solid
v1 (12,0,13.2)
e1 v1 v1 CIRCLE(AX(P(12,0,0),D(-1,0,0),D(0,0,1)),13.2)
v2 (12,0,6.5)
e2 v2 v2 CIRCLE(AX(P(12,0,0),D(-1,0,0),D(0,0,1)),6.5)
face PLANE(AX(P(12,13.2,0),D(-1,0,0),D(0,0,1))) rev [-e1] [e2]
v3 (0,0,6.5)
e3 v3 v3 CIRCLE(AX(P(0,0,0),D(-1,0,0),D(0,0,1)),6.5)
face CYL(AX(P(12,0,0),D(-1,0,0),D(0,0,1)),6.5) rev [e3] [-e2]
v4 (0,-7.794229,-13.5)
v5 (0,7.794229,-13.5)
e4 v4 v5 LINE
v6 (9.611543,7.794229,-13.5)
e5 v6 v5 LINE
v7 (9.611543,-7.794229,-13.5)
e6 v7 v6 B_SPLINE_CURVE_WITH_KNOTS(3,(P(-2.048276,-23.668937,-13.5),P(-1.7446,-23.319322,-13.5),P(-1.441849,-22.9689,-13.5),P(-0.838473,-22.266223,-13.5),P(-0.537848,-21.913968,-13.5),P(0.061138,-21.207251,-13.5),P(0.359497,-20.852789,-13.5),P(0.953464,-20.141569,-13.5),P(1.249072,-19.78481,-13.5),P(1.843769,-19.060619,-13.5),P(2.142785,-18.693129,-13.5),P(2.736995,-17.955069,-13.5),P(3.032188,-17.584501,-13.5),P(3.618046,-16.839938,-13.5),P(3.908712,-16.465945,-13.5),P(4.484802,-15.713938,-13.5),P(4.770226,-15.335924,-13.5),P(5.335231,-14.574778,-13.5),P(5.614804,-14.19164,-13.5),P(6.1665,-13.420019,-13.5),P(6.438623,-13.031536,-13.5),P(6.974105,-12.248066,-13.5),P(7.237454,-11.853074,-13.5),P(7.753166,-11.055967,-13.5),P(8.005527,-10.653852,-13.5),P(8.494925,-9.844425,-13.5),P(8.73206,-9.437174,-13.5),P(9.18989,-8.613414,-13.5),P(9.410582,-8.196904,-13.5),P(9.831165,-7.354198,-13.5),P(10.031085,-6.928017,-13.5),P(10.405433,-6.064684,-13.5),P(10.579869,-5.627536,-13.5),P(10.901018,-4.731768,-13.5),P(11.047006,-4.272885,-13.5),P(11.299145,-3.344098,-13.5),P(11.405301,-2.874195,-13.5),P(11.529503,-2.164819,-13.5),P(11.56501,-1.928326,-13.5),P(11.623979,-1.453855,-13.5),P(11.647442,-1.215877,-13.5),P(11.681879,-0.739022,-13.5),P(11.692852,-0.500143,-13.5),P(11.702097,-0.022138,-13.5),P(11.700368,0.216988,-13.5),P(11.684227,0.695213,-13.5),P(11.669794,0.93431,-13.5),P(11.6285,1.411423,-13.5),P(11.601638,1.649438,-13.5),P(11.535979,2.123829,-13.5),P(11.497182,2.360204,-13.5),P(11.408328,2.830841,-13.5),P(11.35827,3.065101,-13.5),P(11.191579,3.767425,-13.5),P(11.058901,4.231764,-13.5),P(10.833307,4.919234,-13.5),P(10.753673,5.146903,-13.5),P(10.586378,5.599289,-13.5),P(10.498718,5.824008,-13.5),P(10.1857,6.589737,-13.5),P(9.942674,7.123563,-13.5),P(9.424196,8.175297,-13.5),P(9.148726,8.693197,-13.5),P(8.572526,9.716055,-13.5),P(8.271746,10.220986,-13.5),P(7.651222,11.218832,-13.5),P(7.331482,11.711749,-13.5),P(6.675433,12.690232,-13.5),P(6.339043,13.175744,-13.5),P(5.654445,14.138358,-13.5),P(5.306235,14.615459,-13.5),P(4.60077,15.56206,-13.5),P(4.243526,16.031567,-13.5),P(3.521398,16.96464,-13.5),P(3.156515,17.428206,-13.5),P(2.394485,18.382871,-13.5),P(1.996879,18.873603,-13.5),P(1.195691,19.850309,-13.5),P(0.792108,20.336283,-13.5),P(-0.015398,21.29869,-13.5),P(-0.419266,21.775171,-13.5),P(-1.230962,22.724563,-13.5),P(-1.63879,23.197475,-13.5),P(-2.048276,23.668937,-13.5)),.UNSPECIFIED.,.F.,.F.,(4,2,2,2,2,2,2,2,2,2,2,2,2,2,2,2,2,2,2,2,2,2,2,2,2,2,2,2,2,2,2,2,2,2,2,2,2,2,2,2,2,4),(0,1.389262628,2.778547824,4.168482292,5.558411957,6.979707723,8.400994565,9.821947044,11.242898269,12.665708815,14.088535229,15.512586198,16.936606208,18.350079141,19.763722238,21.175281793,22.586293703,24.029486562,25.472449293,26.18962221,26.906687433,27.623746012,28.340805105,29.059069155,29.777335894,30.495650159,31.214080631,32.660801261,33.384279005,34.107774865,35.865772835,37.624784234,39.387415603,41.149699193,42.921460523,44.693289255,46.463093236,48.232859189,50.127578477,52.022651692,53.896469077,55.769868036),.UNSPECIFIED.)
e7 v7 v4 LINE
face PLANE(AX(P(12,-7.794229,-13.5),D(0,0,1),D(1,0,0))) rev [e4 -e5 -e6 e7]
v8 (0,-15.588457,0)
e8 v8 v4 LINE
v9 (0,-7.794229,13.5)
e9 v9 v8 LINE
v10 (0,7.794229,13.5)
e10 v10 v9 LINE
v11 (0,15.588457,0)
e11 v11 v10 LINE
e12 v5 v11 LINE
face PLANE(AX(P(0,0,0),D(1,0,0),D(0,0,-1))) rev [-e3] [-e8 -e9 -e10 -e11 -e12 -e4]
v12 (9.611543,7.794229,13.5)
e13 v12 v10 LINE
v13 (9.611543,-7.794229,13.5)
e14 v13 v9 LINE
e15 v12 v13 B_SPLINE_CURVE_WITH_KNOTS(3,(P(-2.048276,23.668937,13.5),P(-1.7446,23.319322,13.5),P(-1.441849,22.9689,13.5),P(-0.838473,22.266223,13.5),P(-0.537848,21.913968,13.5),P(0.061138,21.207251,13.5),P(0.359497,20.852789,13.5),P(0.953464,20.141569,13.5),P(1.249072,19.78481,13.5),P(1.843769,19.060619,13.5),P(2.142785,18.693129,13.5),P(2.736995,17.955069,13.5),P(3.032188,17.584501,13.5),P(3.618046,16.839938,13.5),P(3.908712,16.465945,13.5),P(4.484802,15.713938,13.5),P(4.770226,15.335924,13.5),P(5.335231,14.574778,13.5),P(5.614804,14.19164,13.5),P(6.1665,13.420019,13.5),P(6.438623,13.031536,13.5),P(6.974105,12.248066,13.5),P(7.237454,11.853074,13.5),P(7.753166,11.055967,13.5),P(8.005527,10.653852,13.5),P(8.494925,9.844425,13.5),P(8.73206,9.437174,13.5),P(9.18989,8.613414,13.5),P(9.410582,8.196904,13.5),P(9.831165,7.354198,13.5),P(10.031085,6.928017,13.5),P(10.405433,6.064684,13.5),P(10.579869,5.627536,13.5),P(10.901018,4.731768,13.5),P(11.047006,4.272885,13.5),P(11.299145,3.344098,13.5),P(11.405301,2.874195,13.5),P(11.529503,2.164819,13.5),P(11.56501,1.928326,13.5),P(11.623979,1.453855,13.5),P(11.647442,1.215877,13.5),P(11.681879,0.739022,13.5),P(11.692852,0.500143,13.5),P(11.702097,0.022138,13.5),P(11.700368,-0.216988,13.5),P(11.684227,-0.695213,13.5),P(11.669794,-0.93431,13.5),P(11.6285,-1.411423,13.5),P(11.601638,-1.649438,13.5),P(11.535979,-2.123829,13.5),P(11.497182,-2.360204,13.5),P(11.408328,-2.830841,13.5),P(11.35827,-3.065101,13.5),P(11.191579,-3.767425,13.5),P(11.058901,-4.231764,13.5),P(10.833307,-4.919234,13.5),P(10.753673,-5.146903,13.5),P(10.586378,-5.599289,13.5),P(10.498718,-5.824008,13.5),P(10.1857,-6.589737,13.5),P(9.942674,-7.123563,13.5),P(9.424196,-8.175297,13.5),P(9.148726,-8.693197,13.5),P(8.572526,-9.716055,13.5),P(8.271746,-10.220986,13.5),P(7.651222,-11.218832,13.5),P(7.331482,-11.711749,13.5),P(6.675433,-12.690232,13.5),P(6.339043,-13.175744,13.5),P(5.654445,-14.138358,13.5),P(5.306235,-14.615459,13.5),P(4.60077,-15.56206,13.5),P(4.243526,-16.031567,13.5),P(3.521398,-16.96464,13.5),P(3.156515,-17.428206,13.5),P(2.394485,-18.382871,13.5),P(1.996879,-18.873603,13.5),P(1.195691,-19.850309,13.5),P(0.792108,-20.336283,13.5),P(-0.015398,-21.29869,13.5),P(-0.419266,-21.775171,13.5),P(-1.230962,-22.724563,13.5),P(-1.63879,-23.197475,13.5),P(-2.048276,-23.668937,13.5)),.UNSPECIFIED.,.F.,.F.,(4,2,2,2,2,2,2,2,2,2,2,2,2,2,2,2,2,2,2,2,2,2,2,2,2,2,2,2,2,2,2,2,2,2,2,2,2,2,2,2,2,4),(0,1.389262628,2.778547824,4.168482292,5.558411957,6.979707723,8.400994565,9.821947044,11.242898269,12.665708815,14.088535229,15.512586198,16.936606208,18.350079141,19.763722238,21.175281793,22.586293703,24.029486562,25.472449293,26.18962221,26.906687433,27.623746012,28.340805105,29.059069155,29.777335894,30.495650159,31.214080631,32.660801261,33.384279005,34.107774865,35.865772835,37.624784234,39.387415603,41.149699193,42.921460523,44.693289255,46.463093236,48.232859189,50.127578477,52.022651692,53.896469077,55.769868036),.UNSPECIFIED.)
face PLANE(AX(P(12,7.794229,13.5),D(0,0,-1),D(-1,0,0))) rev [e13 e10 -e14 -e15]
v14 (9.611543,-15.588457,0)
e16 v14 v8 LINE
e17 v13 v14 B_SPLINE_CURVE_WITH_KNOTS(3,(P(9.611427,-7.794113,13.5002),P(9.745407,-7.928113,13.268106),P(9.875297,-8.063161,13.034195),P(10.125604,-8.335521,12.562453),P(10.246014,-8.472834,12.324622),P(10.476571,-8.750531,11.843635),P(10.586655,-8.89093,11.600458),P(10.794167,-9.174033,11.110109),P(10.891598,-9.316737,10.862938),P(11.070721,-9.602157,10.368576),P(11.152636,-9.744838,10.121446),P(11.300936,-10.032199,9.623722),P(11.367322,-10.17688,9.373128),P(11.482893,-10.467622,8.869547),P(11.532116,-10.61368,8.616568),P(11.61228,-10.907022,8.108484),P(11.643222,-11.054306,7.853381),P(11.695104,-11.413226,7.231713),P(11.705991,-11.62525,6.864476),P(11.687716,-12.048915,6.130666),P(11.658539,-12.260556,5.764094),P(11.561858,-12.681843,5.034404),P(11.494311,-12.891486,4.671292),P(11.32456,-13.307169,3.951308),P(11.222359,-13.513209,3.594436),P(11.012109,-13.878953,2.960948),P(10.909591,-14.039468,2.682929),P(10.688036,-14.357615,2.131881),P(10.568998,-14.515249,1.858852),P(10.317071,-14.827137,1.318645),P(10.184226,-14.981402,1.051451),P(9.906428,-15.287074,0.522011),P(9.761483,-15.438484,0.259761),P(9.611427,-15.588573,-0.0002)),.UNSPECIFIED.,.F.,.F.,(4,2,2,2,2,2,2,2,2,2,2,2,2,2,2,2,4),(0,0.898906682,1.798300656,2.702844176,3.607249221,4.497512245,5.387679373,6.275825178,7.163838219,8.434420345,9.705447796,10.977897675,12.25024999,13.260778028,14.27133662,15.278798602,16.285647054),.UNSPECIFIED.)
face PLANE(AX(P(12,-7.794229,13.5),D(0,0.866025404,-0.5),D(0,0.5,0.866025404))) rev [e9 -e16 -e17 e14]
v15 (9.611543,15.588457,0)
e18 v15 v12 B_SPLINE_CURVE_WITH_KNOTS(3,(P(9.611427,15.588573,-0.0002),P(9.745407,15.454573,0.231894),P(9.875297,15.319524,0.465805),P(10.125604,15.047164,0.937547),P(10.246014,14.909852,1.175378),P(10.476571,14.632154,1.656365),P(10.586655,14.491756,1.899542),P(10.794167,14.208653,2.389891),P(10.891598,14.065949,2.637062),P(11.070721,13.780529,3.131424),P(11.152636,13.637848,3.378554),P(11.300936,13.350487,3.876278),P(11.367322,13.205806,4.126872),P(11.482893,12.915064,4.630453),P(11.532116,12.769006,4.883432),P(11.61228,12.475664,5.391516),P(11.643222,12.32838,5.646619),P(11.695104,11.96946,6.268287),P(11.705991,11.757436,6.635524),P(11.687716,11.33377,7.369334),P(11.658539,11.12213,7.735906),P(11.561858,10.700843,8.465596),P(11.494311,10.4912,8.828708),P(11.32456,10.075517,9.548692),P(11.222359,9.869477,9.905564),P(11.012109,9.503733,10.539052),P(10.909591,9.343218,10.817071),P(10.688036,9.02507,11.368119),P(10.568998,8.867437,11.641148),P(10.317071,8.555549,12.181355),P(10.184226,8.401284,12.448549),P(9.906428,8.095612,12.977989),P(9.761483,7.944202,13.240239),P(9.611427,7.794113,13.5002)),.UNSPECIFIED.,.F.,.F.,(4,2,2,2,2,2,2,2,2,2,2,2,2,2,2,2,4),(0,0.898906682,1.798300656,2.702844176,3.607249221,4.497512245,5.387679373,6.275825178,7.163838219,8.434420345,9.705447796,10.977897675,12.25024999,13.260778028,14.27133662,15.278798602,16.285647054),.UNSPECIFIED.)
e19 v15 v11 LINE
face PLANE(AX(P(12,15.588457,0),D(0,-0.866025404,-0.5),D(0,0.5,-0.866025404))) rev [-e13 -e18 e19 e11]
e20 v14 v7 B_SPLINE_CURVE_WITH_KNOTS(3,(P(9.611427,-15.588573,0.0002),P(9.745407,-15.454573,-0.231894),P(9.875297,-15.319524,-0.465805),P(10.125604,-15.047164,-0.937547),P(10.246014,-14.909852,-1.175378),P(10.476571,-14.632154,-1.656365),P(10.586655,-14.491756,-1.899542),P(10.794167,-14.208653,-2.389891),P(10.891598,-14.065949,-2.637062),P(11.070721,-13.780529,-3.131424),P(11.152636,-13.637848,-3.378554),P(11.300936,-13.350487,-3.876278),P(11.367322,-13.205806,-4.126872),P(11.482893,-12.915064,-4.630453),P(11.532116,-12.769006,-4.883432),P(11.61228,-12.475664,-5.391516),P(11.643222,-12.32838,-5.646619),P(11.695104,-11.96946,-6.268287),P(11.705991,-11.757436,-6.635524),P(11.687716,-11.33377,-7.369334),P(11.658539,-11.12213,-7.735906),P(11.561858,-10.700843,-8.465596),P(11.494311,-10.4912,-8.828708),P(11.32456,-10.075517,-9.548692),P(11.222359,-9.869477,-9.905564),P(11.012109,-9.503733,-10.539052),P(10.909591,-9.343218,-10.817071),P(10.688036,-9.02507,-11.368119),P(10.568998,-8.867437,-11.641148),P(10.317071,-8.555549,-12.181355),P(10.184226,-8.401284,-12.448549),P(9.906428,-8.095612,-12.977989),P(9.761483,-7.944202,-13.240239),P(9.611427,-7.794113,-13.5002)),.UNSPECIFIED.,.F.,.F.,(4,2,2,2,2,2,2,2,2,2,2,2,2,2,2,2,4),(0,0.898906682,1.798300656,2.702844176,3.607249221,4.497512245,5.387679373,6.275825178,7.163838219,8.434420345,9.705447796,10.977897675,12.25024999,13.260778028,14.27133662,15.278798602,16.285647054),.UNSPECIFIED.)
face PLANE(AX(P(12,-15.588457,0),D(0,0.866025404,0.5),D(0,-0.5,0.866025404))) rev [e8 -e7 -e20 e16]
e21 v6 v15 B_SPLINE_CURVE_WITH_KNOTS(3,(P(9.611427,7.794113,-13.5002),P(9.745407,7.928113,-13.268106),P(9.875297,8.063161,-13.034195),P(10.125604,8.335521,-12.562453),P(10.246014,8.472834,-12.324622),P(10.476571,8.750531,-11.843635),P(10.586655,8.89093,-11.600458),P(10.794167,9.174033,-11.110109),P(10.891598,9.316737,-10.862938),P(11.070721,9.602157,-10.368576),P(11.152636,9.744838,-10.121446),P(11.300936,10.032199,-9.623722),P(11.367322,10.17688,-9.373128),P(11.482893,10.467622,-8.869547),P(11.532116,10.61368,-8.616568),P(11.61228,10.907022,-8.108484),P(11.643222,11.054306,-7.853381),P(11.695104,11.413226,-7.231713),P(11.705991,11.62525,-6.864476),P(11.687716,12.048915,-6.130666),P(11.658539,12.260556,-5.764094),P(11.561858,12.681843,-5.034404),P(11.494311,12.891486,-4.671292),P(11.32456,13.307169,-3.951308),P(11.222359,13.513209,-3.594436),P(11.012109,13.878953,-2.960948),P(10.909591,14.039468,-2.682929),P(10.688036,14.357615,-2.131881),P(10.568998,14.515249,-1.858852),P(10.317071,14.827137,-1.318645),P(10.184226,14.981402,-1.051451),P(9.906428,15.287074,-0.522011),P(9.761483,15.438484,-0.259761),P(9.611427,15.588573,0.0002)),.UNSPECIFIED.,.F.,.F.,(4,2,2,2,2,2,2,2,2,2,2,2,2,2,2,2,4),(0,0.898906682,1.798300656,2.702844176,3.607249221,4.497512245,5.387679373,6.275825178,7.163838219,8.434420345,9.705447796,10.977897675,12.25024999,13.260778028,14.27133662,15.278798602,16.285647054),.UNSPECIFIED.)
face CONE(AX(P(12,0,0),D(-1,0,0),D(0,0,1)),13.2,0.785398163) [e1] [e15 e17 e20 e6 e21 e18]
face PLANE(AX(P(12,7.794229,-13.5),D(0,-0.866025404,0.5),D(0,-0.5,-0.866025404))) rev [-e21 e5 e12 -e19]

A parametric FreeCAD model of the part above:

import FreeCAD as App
import Part
import Sketcher
from FreeCAD import Vector
Q = App.Units.Quantity

doc = App.newDocument("Part")
body = doc.addObject("PartDesign::Body", "Body")

sketch1 = doc.addObject("Sketcher::SketchObject", "Sketch")
body.addObject(sketch1)
sketch1.AttachmentSupport = (doc.XY_Plane, [""])
sketch1.MapMode = "FlatFace"
sketch1.addGeometry(Part.LineSegment(Vector(0, 16.2, 0), Vector(0, 0, 0)), False)
sketch1.addGeometry(Part.LineSegment(Vector(0, 0, 0), Vector(12, 0, 0)), False)
sketch1.addGeometry(Part.LineSegment(Vector(12, 0, 0), Vector(12, 13.2, 0)), False)
sketch1.addGeometry(Part.LineSegment(Vector(12, 13.2, 0), Vector(9, 16.2, 0)), False)
sketch1.addGeometry(Part.LineSegment(Vector(9, 16.2, 0), Vector(0, 16.2, 0)), False)
sketch1.addConstraint(Sketcher.Constraint("Coincident", 0, 2, 1, 1))
sketch1.addConstraint(Sketcher.Constraint("Coincident", 1, 2, 2, 1))
sketch1.addConstraint(Sketcher.Constraint("Coincident", 2, 2, 3, 1))
sketch1.addConstraint(Sketcher.Constraint("Coincident", 3, 2, 4, 1))
sketch1.addConstraint(Sketcher.Constraint("Coincident", 4, 2, 0, 1))
sketch1.addConstraint(Sketcher.Constraint("Vertical", 0))
sketch1.addConstraint(Sketcher.Constraint("Horizontal", 1))
sketch1.addConstraint(Sketcher.Constraint("Vertical", 2))
sketch1.addConstraint(Sketcher.Constraint("Horizontal", 4))
sketch1.addConstraint(Sketcher.Constraint("Coincident", 0, 2, -1, 1))
sketch1.addConstraint(Sketcher.Constraint("DistanceX", 1, 1, 1, 2, Q("12 mm")))
sketch1.addConstraint(Sketcher.Constraint("DistanceX", 4, 2, 4, 1, Q("9 mm")))
sketch1.addConstraint(Sketcher.Constraint("Angle", 3, Q("135 deg")))
sketch1.addConstraint(Sketcher.Constraint("DistanceY", 0, 2, 0, 1, Q("16.2 mm")))
revolution = doc.addObject("PartDesign::Revolution", "Revolution")
body.addObject(revolution)
revolution.Profile = sketch1
revolution.ReferenceAxis = (sketch1, ["H_Axis"])
revolution.Angle = 360

sketch2 = doc.addObject("Sketcher::SketchObject", "Sketch001")
body.addObject(sketch2)
sketch2.AttachmentSupport = (doc.YZ_Plane, [""])
sketch2.MapMode = "FlatFace"
sketch2.addGeometry(Part.Circle(Vector(0, 0, 0), Vector(0, 0, 1), 27), False)
sketch2.addGeometry(Part.LineSegment(Vector(-16, 0, 0), Vector(-8, 14, 0)), False)
sketch2.addGeometry(Part.LineSegment(Vector(-8, 14, 0), Vector(8, 14, 0)), False)
sketch2.addGeometry(Part.LineSegment(Vector(8, 14, 0), Vector(16, 0, 0)), False)
sketch2.addGeometry(Part.LineSegment(Vector(16, 0, 0), Vector(8, -14, 0)), False)
sketch2.addGeometry(Part.LineSegment(Vector(8, -14, 0), Vector(-8, -14, 0)), False)
sketch2.addGeometry(Part.LineSegment(Vector(-8, -14, 0), Vector(-16, 0, 0)), False)
sketch2.addConstraint(Sketcher.Constraint("Coincident", 1, 2, 2, 1))
sketch2.addConstraint(Sketcher.Constraint("Coincident", 2, 2, 3, 1))
sketch2.addConstraint(Sketcher.Constraint("Coincident", 3, 2, 4, 1))
sketch2.addConstraint(Sketcher.Constraint("Coincident", 4, 2, 5, 1))
sketch2.addConstraint(Sketcher.Constraint("Coincident", 5, 2, 6, 1))
sketch2.addConstraint(Sketcher.Constraint("Coincident", 6, 2, 1, 1))
sketch2.addConstraint(Sketcher.Constraint("Horizontal", 2))
sketch2.addConstraint(Sketcher.Constraint("Horizontal", 5))
sketch2.addConstraint(Sketcher.Constraint("Coincident", 0, 3, -1, 1))
sketch2.addConstraint(Sketcher.Constraint("Symmetric", 1, 2, 4, 2, -1, 1))
sketch2.addConstraint(Sketcher.Constraint("Symmetric", 3, 2, 6, 2, -1, 1))
sketch2.addConstraint(Sketcher.Constraint("PointOnObject", 3, 2, -1))
sketch2.addConstraint(Sketcher.Constraint("Parallel", 3, 6))
sketch2.addConstraint(Sketcher.Constraint("Vertical", 2, 2, 4, 2))
sketch2.addConstraint(Sketcher.Constraint("Diameter", 0, Q("54 mm")))
sketch2.addConstraint(Sketcher.Constraint("Angle", 1, Q("60 deg")))
sketch2.addConstraint(Sketcher.Constraint("DistanceY", 4, 2, 2, 2, Q("27 mm")))
sketch2.addConstraint(Sketcher.Constraint("DistanceX", 2, 1, 2, 2, Q("15.588457 mm")))
pocket1 = doc.addObject("PartDesign::Pocket", "Pocket")
body.addObject(pocket1)
pocket1.Profile = sketch2
pocket1.Length = 12
pocket1.Reversed = True

sketch3 = doc.addObject("Sketcher::SketchObject", "Sketch002")
body.addObject(sketch3)
sketch3.AttachmentSupport = (doc.XY_Plane, [""])
sketch3.MapMode = "FlatFace"
sketch3.addGeometry(Part.LineSegment(Vector(0, 6, 0), Vector(0, 0, 0)), False)
sketch3.addGeometry(Part.LineSegment(Vector(0, 0, 0), Vector(12, 0, 0)), False)
sketch3.addGeometry(Part.LineSegment(Vector(12, 0, 0), Vector(12, 6, 0)), False)
sketch3.addGeometry(Part.LineSegment(Vector(12, 6, 0), Vector(0, 6, 0)), False)
sketch3.addConstraint(Sketcher.Constraint("Coincident", 0, 2, 1, 1))
sketch3.addConstraint(Sketcher.Constraint("Coincident", 1, 2, 2, 1))
sketch3.addConstraint(Sketcher.Constraint("Coincident", 2, 2, 3, 1))
sketch3.addConstraint(Sketcher.Constraint("Coincident", 3, 2, 0, 1))
sketch3.addConstraint(Sketcher.Constraint("Vertical", 0))
sketch3.addConstraint(Sketcher.Constraint("Horizontal", 1))
sketch3.addConstraint(Sketcher.Constraint("Vertical", 2))
sketch3.addConstraint(Sketcher.Constraint("Horizontal", 3))
sketch3.addConstraint(Sketcher.Constraint("Coincident", 0, 2, -1, 1))
sketch3.addConstraint(Sketcher.Constraint("DistanceX", 1, 1, 1, 2, Q("12 mm")))
sketch3.addConstraint(Sketcher.Constraint("DistanceY", 0, 2, 0, 1, Q("6.5 mm")))
groove = doc.addObject("PartDesign::Groove", "Groove")
body.addObject(groove)
groove.Profile = sketch3
groove.ReferenceAxis = (sketch3, ["H_Axis"])
groove.Angle = 360

doc.recompute()
